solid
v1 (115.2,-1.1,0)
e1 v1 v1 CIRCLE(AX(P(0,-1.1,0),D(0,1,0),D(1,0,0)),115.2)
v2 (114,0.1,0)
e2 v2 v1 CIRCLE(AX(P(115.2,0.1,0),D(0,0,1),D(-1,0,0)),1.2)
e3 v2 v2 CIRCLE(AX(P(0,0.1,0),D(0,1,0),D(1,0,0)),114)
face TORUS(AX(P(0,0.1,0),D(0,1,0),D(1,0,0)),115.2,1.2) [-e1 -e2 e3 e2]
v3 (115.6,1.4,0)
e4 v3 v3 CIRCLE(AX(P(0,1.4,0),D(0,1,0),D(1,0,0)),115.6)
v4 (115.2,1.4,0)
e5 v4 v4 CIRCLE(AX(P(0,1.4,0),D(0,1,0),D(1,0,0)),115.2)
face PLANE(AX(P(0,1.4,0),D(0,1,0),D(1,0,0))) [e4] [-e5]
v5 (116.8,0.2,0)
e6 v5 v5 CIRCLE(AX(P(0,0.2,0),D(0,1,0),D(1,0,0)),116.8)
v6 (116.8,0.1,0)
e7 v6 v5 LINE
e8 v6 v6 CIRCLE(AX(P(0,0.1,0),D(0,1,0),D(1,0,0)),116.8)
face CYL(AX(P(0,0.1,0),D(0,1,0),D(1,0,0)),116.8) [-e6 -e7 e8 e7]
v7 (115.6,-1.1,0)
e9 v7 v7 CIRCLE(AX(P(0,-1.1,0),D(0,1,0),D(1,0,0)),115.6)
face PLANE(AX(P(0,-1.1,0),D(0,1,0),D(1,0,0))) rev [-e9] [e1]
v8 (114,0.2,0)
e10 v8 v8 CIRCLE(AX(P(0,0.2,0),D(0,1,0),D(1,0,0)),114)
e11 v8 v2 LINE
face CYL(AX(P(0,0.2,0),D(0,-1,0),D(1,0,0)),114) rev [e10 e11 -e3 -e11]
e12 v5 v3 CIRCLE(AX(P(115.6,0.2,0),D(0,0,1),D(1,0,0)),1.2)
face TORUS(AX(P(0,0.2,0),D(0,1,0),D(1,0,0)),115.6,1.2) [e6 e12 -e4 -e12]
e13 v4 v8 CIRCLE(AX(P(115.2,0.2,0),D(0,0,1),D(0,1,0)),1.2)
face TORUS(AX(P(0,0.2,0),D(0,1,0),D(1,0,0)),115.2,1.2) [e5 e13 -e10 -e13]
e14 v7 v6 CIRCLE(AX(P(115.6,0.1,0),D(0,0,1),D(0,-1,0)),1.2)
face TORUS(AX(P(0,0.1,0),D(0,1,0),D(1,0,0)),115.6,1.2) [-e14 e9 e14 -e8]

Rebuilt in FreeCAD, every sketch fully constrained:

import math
import FreeCAD as App
import Part
import Sketcher

V = App.Vector
Q = App.Units.Quantity

doc = App.newDocument("Part")
params = doc.addObject("Spreadsheet::Sheet", "Params")
for row, (alias, value) in enumerate([
    ("sketch1_radius", "1.2 mm"),
    ("sketch1_width", "0.4 mm"),
    ("sketch1_height", "0.1 mm"),
    ("revolution_angle", "360 deg"),
], start=1):
    params.set(f"A{row}", alias)
    params.set(f"B{row}", "=" + value)
    params.setAlias(f"B{row}", alias)

body = doc.addObject("PartDesign::Body", "Body")

sketch1 = body.newObject("Sketcher::SketchObject", "Sketch")
sketch1.AttachmentSupport = (doc.getObject("XY_Plane"), [""])
sketch1.MapMode = "FlatFace"
sketch1.addGeometry([
    Part.ArcOfCircle(Part.Circle(V(115.2, 0.1, 0), V(0, 0, 1), 1.2), math.radians(180), math.radians(270)),
    Part.LineSegment(V(115.2, -1.1, 0), V(115.6, -1.1, 0)),
    Part.ArcOfCircle(Part.Circle(V(115.6, 0.1, 0), V(0, 0, 1), 1.2), math.radians(-90), math.radians(0)),
    Part.LineSegment(V(116.8, 0.1, 0), V(116.8, 0.2, 0)),
    Part.ArcOfCircle(Part.Circle(V(115.6, 0.2, 0), V(0, 0, 1), 1.2), math.radians(0), math.radians(90)),
    Part.LineSegment(V(115.6, 1.4, 0), V(115.2, 1.4, 0)),
    Part.ArcOfCircle(Part.Circle(V(115.2, 0.2, 0), V(0, 0, 1), 1.2), math.radians(90), math.radians(180)),
    Part.LineSegment(V(114, 0.2, 0), V(114, 0.1, 0)),
], False)
sketch1.addConstraint([
    Sketcher.Constraint("Tangent", 0, 2, 1, 1),
    Sketcher.Constraint("Tangent", 1, 2, 2, 1),
    Sketcher.Constraint("Tangent", 2, 2, 3, 1),
    Sketcher.Constraint("Tangent", 3, 2, 4, 1),
    Sketcher.Constraint("Tangent", 4, 2, 5, 1),
    Sketcher.Constraint("Tangent", 5, 2, 6, 1),
    Sketcher.Constraint("Tangent", 6, 2, 7, 1),
    Sketcher.Constraint("Tangent", 7, 2, 0, 1),
    Sketcher.Constraint("Horizontal", 1),
    Sketcher.Constraint("Vertical", 3),
    Sketcher.Constraint("Horizontal", 5),
    Sketcher.Constraint("Vertical", 7),
    Sketcher.Constraint("Equal", 0, 2),
    Sketcher.Constraint("Equal", 2, 4),
    Sketcher.Constraint("Equal", 4, 6),
    Sketcher.Constraint("Radius", 0, Q("1.2 mm")),
    Sketcher.Constraint("DistanceX", -1, 1, 6, 2, Q("114 mm")),
    Sketcher.Constraint("DistanceY", -1, 1, 4, 2, Q("1.4 mm")),
    Sketcher.Constraint("DistanceX", 1, 1, 1, 2, Q("0.4 mm")),
    Sketcher.Constraint("DistanceY", 3, 1, 3, 2, Q("0.1 mm")),
])
sketch1.setExpression("Constraints[15]", "Params.sketch1_radius")
sketch1.setExpression("Constraints[18]", "Params.sketch1_width")
sketch1.setExpression("Constraints[19]", "Params.sketch1_height")
revolution = body.newObject("PartDesign::Revolution", "Revolution")
revolution.Profile = sketch1
revolution.ReferenceAxis = (sketch1, ["V_Axis"])
revolution.setExpression("Angle", "Params.revolution_angle")

doc.recompute()
